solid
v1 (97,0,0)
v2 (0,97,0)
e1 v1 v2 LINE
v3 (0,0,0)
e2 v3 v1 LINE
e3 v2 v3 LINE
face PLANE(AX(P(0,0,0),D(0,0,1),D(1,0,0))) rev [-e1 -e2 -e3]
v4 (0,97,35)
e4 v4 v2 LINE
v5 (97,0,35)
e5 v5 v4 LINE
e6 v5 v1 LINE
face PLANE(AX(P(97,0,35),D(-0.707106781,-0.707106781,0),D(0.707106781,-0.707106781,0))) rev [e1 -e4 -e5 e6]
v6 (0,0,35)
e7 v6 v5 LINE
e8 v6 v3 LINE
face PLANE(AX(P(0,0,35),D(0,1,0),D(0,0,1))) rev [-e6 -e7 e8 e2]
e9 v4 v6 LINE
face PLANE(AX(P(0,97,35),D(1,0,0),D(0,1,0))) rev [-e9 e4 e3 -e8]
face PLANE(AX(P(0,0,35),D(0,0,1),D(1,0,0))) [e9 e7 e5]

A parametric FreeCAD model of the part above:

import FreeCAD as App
import Part
import Sketcher

V = App.Vector

doc = App.newDocument("Part")
body = doc.addObject("PartDesign::Body", "Body")

# Sketch on XY plane
sketch1 = doc.addObject("Sketcher::SketchObject", "Sketch")
body.addObject(sketch1)
sketch1.AttachmentSupport = (doc.XY_Plane, [""])
sketch1.MapMode = "FlatFace"
sketch1.addGeometry(Part.LineSegment(V(0, 0, 0), V(97, 0, 0)), False)
sketch1.addGeometry(Part.LineSegment(V(97, 0, 0), V(0, 97, 0)), False)
sketch1.addGeometry(Part.LineSegment(V(0, 97, 0), V(0, 0, 0)), False)
sketch1.addConstraint(Sketcher.Constraint("Coincident", 0, 2, 1, 1))
sketch1.addConstraint(Sketcher.Constraint("Coincident", 1, 2, 2, 1))
sketch1.addConstraint(Sketcher.Constraint("Coincident", 2, 2, 0, 1))
sketch1.addConstraint(Sketcher.Constraint("Horizontal", 0))
sketch1.addConstraint(Sketcher.Constraint("Vertical", 2))
sketch1.addConstraint(Sketcher.Constraint("Coincident", 2, 2, -1, 1))
sketch1.addConstraint(Sketcher.Constraint("Equal", 0, 2))
sketch1.addConstraint(Sketcher.Constraint("DistanceX", 0, 1, 0, 2, 97.0))
pad1 = doc.addObject("PartDesign::Pad", "Pad")
body.addObject(pad1)
pad1.Profile = sketch1
pad1.Length = 35

doc.recompute()
